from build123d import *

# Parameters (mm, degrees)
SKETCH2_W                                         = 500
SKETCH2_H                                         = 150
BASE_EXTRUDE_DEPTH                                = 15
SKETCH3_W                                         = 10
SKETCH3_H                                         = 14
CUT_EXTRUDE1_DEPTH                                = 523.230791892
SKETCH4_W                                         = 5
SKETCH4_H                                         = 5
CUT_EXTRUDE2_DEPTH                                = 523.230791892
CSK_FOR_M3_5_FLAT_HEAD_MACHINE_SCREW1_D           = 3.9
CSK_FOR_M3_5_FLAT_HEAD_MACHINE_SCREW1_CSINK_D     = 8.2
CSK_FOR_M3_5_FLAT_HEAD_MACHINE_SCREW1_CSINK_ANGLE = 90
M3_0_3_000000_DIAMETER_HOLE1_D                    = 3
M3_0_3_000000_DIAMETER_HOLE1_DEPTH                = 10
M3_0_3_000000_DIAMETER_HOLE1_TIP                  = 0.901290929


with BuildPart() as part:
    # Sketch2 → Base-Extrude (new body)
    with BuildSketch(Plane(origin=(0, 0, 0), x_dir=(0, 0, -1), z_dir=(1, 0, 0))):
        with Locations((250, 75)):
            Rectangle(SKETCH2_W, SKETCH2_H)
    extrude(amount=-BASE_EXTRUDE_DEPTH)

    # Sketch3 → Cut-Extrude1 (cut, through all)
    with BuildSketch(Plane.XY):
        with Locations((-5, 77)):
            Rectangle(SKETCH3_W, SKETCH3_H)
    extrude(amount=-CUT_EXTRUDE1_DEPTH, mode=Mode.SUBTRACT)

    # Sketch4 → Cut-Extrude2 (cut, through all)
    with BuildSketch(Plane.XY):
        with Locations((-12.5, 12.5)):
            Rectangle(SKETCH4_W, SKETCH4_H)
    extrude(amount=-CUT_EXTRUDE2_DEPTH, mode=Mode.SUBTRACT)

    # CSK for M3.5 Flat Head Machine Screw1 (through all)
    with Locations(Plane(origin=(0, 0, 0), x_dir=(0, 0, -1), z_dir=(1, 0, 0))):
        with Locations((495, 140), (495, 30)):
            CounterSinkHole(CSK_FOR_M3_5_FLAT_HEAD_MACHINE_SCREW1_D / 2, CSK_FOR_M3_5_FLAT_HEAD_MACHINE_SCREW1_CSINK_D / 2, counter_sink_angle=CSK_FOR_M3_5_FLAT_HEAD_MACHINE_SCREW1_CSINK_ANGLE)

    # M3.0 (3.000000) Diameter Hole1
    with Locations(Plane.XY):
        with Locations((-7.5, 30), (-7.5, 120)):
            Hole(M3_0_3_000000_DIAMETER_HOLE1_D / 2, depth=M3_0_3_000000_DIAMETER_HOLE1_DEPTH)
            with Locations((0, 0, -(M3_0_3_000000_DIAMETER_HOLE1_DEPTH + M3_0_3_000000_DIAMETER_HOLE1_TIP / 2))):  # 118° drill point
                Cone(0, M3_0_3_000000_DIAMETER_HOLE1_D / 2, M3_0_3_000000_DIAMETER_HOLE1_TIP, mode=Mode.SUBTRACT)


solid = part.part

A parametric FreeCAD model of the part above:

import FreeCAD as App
import Part
import Sketcher
from FreeCAD import Vector
Q = App.Units.Quantity


def add_polygon(sketch, points):
    """Adds a closed chain of lines whose ends are joined by coincident constraints."""
    first, n = sketch.GeometryCount, len(points)
    for a, b in zip(points, points[1:] + points[:1]):
        sketch.addGeometry(Part.LineSegment(App.Vector(*a, 0), App.Vector(*b, 0)), False)
    for i in range(n):
        sketch.addConstraint(Sketcher.Constraint("Coincident", first + i, 2, first + (i + 1) % n, 1))

doc = App.newDocument("Part")
body = doc.addObject("PartDesign::Body", "Body")

sketch1 = body.newObject("Sketcher::SketchObject", "Sketch")
sketch1.AttachmentSupport = (doc.getObject("YZ_Plane"), [""])
sketch1.MapMode = "FlatFace"
add_polygon(sketch1, [(150, 0), (0, 0), (0, -500), (150, -500)])
sketch1.addConstraint([
    Sketcher.Constraint("Horizontal", 0),
    Sketcher.Constraint("Vertical", 1),
    Sketcher.Constraint("Horizontal", 2),
    Sketcher.Constraint("Vertical", 3),
    Sketcher.Constraint("Coincident", 0, 2, -1, 1),
    Sketcher.Constraint("DistanceX", 0, 2, 0, 1, Q("150 mm")),
    Sketcher.Constraint("DistanceY", 1, 2, 1, 1, Q("500 mm")),
])
pad1 = body.newObject("PartDesign::Pad", "Pad")
pad1.Profile = sketch1
pad1.Length = 15
pad1.Reversed = True

sketch2 = body.newObject("Sketcher::SketchObject", "Sketch001")
sketch2.AttachmentSupport = (doc.getObject("XY_Plane"), [""])
sketch2.MapMode = "FlatFace"
add_polygon(sketch2, [(-10, 84), (-10, 70), (0, 70), (0, 84)])
sketch2.addConstraint([
    Sketcher.Constraint("Vertical", 0),
    Sketcher.Constraint("Horizontal", 1),
    Sketcher.Constraint("Vertical", 2),
    Sketcher.Constraint("Horizontal", 3),
    Sketcher.Constraint("PointOnObject", 1, 2, -2),
    Sketcher.Constraint("DistanceX", 1, 1, 1, 2, Q("10 mm")),
    Sketcher.Constraint("DistanceY", 0, 2, 0, 1, Q("14 mm")),
    Sketcher.Constraint("DistanceY", -1, 1, 0, 2, Q("70 mm")),
])
pocket1 = body.newObject("PartDesign::Pocket", "Pocket")
pocket1.Profile = sketch2
pocket1.Type = "ThroughAll"

sketch3 = body.newObject("Sketcher::SketchObject", "Sketch002")
sketch3.AttachmentSupport = (doc.getObject("XY_Plane"), [""])
sketch3.MapMode = "FlatFace"
add_polygon(sketch3, [(-15, 15), (-15, 10), (-10, 10), (-10, 15)])
sketch3.addConstraint([
    Sketcher.Constraint("Vertical", 0),
    Sketcher.Constraint("Horizontal", 1),
    Sketcher.Constraint("Vertical", 2),
    Sketcher.Constraint("Horizontal", 3),
    Sketcher.Constraint("Equal", 3, 0),
    Sketcher.Constraint("DistanceX", 1, 1, 1, 2, Q("5 mm")),
    Sketcher.Constraint("DistanceX", 0, 2, -1, 1, Q("15 mm")),
    Sketcher.Constraint("DistanceY", -1, 1, 0, 2, Q("10 mm")),
])
pocket2 = body.newObject("PartDesign::Pocket", "Pocket001")
pocket2.Profile = sketch3
pocket2.Type = "ThroughAll"

sketch4 = body.newObject("Sketcher::SketchObject", "Sketch003")
sketch4.AttachmentSupport = (doc.getObject("YZ_Plane"), [""])
sketch4.MapMode = "FlatFace"
sketch4.addGeometry([
    Part.Circle(Vector(140, -495, 0), Vector(0, 0, 1), 1.95),
    Part.Circle(Vector(30, -495, 0), Vector(0, 0, 1), 1.95),
], False)
sketch4.addConstraint([
    Sketcher.Constraint("Equal", 0, 1),
    Sketcher.Constraint("Horizontal", 0, 3, 1, 3),
    Sketcher.Constraint("Diameter", 0, Q("3.9 mm")),
    Sketcher.Constraint("DistanceX", -1, 1, 0, 3, Q("140 mm")),
    Sketcher.Constraint("DistanceY", 0, 3, -1, 1, Q("495 mm")),
    Sketcher.Constraint("DistanceX", -1, 1, 1, 3, Q("30 mm")),
])
doc.recompute()
hole = body.newObject("PartDesign::Hole", "Hole")
hole.Profile = sketch4
hole.ThreadType = "None"
hole.Diameter = 3.9
hole.DepthType = "ThroughAll"
hole.HoleCutType = "Countersink"
hole.HoleCutDiameter = 8.2
hole.HoleCutCountersinkAngle = 90

sketch5 = body.newObject("Sketcher::SketchObject", "Sketch004")
sketch5.AttachmentSupport = (doc.getObject("XY_Plane"), [""])
sketch5.MapMode = "FlatFace"
sketch5.addGeometry([
    Part.Circle(Vector(-7.5, 30, 0), Vector(0, 0, 1), 1.5),
    Part.Circle(Vector(-7.5, 120, 0), Vector(0, 0, 1), 1.5),
], False)
sketch5.addConstraint([
    Sketcher.Constraint("Equal", 0, 1),
    Sketcher.Constraint("Vertical", 0, 3, 1, 3),
    Sketcher.Constraint("Diameter", 0, Q("3 mm")),
    Sketcher.Constraint("DistanceY", -1, 1, 0, 3, Q("30 mm")),
    Sketcher.Constraint("DistanceY", -1, 1, 1, 3, Q("120 mm")),
    Sketcher.Constraint("DistanceX", 0, 3, -1, 1, Q("7.5 mm")),
])
doc.recompute()
hole2 = body.newObject("PartDesign::Hole", "Hole001")
hole2.Profile = sketch5
hole2.ThreadType = "None"
hole2.Diameter = 3
hole2.DepthType = "Dimension"
hole2.Depth = 10
hole2.DrillPoint = "Angled"
hole2.DrillPointAngle = 118

doc.recompute()
